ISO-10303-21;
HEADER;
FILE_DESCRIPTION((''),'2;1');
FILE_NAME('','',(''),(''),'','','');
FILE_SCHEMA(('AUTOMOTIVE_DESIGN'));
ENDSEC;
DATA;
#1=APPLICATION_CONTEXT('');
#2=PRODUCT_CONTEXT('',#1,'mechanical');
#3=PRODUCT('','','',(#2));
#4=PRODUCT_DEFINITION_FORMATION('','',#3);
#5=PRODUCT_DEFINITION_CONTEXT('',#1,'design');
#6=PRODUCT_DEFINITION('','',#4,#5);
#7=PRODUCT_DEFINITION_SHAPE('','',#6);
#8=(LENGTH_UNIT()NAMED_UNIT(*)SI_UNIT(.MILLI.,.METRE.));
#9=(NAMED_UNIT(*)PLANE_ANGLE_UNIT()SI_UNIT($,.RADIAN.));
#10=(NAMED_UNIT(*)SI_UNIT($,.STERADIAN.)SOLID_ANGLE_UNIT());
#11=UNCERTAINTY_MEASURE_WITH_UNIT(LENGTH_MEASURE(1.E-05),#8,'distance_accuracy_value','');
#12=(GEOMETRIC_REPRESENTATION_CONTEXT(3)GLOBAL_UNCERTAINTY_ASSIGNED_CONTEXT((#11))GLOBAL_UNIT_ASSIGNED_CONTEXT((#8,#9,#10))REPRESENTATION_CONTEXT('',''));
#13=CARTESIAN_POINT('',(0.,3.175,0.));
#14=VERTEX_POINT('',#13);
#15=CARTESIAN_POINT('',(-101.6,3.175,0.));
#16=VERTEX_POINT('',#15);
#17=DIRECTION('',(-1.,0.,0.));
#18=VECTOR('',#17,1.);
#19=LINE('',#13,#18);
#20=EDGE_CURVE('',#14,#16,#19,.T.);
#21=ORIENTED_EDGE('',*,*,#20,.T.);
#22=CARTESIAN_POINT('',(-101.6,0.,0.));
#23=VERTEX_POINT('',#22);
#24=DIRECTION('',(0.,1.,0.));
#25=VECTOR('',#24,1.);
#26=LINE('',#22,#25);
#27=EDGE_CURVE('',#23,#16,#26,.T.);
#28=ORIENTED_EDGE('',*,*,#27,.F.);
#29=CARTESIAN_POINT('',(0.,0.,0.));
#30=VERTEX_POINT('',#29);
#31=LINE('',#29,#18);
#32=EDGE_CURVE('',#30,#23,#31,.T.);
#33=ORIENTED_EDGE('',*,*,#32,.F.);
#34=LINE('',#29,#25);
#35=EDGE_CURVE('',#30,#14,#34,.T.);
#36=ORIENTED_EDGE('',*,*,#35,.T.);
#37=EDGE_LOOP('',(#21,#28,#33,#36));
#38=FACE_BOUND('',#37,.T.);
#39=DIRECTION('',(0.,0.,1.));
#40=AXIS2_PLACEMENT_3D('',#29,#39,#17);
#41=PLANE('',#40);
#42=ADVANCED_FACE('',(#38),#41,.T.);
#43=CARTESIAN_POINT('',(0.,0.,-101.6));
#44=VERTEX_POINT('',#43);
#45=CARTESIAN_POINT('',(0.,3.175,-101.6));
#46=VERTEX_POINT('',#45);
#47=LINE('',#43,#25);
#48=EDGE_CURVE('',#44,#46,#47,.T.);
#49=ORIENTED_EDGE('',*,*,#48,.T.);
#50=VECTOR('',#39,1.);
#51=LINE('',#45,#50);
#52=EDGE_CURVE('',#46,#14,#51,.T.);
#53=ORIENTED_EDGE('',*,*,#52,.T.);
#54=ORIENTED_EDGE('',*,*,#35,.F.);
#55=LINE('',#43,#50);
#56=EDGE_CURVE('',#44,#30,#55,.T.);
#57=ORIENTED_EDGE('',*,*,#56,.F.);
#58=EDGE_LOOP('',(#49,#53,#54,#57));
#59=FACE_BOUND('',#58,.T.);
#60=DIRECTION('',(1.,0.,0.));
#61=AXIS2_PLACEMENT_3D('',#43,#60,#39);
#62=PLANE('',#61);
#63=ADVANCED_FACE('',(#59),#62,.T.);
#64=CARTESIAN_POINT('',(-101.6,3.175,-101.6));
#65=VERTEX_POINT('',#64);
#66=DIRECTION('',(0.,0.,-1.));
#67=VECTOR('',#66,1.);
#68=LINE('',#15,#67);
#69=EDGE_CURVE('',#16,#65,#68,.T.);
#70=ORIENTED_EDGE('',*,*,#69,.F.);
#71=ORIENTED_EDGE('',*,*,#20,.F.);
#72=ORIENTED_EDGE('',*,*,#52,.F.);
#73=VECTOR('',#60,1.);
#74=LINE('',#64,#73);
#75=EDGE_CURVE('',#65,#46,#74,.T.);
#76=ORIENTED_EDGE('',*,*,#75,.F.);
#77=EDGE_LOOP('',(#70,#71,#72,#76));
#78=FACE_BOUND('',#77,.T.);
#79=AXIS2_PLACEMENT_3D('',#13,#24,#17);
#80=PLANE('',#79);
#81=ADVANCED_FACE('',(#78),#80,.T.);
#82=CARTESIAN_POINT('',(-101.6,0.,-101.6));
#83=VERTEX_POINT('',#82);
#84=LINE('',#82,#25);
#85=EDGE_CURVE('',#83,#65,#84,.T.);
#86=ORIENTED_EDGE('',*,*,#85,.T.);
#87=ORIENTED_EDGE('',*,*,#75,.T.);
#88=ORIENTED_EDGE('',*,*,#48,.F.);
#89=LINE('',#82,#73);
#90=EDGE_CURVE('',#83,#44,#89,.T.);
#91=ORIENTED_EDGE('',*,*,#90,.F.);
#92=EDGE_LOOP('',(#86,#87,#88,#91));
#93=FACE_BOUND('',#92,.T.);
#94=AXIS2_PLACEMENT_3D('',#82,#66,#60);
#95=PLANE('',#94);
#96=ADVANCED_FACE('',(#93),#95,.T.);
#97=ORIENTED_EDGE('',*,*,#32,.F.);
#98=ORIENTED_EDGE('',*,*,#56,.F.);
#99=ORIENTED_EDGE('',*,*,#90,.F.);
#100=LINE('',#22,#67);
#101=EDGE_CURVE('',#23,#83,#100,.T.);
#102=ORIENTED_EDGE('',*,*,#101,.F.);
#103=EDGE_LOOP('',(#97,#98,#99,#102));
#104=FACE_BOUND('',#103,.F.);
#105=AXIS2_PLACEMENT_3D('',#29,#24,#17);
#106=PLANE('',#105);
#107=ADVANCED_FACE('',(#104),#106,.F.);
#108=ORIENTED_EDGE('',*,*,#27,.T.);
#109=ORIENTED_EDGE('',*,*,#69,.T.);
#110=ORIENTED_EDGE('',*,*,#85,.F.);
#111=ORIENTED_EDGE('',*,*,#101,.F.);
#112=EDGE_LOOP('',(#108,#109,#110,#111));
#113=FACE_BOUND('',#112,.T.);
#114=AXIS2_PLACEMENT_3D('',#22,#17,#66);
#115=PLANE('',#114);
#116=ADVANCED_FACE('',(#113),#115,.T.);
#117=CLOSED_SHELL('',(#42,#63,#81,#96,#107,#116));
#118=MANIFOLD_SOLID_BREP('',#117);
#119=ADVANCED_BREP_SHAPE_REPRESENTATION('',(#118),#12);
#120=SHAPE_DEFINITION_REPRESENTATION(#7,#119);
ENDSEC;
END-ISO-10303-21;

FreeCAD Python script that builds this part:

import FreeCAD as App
import Part
import Sketcher

V = App.Vector
Q = App.Units.Quantity


def add_polygon(sketch, points):
    """Adds a closed chain of lines whose ends are joined by coincident constraints."""
    first, n = sketch.GeometryCount, len(points)
    for a, b in zip(points, points[1:] + points[:1]):
        sketch.addGeometry(Part.LineSegment(App.Vector(*a, 0), App.Vector(*b, 0)), False)
    for i in range(n):
        sketch.addConstraint(Sketcher.Constraint("Coincident", first + i, 2, first + (i + 1) % n, 1))

doc = App.newDocument("Part")
body = doc.addObject("PartDesign::Body", "Body")

# Sketch on XZ plane
sketch1 = body.newObject("Sketcher::SketchObject", "Sketch")
sketch1.AttachmentSupport = (doc.getObject("XZ_Plane"), [""])
sketch1.MapMode = "FlatFace"
add_polygon(sketch1, [(-101.6, 0), (0, 0), (0, -101.6), (-101.6, -101.6)])  # lines 0-3
sketch1.addConstraint([
    Sketcher.Constraint("Horizontal", 0),
    Sketcher.Constraint("Vertical", 1),
    Sketcher.Constraint("Horizontal", 2),
    Sketcher.Constraint("Vertical", 3),
    Sketcher.Constraint("Coincident", 0, 2, -1, 1),
    Sketcher.Constraint("Equal", 2, 1),
    Sketcher.Constraint("DistanceX", 0, 1, 0, 2, Q("4 in")),
])
pad1 = body.newObject("PartDesign::Pad", "Pad")
pad1.Profile = sketch1
pad1.Length = Q("0.125 in")
pad1.Reversed = True

doc.recompute()
